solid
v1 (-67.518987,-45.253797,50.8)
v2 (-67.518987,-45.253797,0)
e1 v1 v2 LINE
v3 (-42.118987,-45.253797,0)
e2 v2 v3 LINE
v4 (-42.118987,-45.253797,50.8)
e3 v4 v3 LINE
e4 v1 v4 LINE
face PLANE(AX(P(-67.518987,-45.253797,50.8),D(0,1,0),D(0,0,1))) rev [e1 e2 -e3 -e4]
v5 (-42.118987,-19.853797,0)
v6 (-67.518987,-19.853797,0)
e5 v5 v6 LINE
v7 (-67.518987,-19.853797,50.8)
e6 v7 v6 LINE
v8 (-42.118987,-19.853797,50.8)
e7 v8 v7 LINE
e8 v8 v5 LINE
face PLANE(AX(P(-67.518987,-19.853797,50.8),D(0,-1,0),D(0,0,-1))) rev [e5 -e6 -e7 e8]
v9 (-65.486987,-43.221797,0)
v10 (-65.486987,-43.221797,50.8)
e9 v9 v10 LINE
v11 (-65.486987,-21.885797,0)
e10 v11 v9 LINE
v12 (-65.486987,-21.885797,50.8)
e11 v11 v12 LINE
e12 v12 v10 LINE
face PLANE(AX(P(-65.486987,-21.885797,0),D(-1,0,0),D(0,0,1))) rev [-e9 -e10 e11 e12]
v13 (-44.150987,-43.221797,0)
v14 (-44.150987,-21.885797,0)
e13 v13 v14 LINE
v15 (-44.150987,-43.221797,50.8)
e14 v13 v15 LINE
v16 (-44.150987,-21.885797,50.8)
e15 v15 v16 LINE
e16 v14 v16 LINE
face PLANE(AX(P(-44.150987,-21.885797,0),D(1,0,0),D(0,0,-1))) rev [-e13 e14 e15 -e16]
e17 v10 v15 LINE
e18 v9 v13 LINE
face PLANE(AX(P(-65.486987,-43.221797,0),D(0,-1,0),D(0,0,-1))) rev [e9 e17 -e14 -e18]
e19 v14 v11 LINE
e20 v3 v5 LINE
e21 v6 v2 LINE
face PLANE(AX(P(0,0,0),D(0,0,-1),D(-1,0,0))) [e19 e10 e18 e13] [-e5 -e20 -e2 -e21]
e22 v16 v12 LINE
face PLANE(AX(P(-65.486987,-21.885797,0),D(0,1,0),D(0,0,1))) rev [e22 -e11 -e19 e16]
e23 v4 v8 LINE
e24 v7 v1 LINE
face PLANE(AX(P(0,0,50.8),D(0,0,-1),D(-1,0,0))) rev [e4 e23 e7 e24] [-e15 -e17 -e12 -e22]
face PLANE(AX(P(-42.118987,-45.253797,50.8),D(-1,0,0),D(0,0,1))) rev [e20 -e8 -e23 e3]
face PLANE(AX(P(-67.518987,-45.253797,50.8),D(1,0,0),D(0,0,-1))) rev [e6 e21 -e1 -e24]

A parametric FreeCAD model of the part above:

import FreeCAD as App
import Part
import Sketcher
Q = App.Units.Quantity

doc = App.newDocument("Part")
body = doc.addObject("PartDesign::Body", "Body")

sketch1 = doc.addObject("Sketcher::SketchObject", "Sketch")
body.addObject(sketch1)
sketch1.AttachmentSupport = (doc.XY_Plane, [""])
sketch1.MapMode = "FlatFace"
sketch1.addGeometry([
    Part.LineSegment(App.Vector(-67.518987, -19.853797, 0), App.Vector(-67.518987, -45.253797, 0)),
    Part.LineSegment(App.Vector(-67.518987, -45.253797, 0), App.Vector(-42.118987, -45.253797, 0)),
    Part.LineSegment(App.Vector(-42.118987, -45.253797, 0), App.Vector(-42.118987, -19.853797, 0)),
    Part.LineSegment(App.Vector(-42.118987, -19.853797, 0), App.Vector(-67.518987, -19.853797, 0)),
], False)
sketch1.addConstraint([
    Sketcher.Constraint("Coincident", 0, 2, 1, 1),
    Sketcher.Constraint("Coincident", 1, 2, 2, 1),
    Sketcher.Constraint("Coincident", 2, 2, 3, 1),
    Sketcher.Constraint("Coincident", 3, 2, 0, 1),
    Sketcher.Constraint("Vertical", 0),
    Sketcher.Constraint("Horizontal", 1),
    Sketcher.Constraint("Vertical", 2),
    Sketcher.Constraint("Horizontal", 3),
    Sketcher.Constraint("Equal", 3, 0),
    Sketcher.Constraint("DistanceX", 1, 1, 1, 2, Q("1 in")),
    Sketcher.Constraint("DistanceX", 0, 2, -1, 1, 67.518987),
    Sketcher.Constraint("DistanceY", 0, 2, -1, 1, 45.253797),
])
pad1 = doc.addObject("PartDesign::Pad", "Pad")
body.addObject(pad1)
pad1.Profile = sketch1
pad1.Length = Q("2 in")

sketch2 = doc.addObject("Sketcher::SketchObject", "Sketch001")
body.addObject(sketch2)
sketch2.AttachmentSupport = (doc.XY_Plane, [""])
sketch2.MapMode = "FlatFace"
sketch2.AttachmentOffset = App.Placement(App.Vector(0, 0, 2 * 25.4), App.Rotation())
sketch2.addGeometry([
    Part.LineSegment(App.Vector(-65.486987, -21.885797, 0), App.Vector(-65.486987, -43.221797, 0)),
    Part.LineSegment(App.Vector(-65.486987, -43.221797, 0), App.Vector(-44.150987, -43.221797, 0)),
    Part.LineSegment(App.Vector(-44.150987, -43.221797, 0), App.Vector(-44.150987, -21.885797, 0)),
    Part.LineSegment(App.Vector(-44.150987, -21.885797, 0), App.Vector(-65.486987, -21.885797, 0)),
], False)
sketch2.addConstraint([
    Sketcher.Constraint("Coincident", 0, 2, 1, 1),
    Sketcher.Constraint("Coincident", 1, 2, 2, 1),
    Sketcher.Constraint("Coincident", 2, 2, 3, 1),
    Sketcher.Constraint("Coincident", 3, 2, 0, 1),
    Sketcher.Constraint("Vertical", 0),
    Sketcher.Constraint("Horizontal", 1),
    Sketcher.Constraint("Vertical", 2),
    Sketcher.Constraint("Horizontal", 3),
    Sketcher.Constraint("Equal", 3, 0),
    Sketcher.Constraint("DistanceX", 1, 1, 1, 2, Q("0.84 in")),
    Sketcher.Constraint("DistanceX", 0, 2, -1, 1, 65.486987),
    Sketcher.Constraint("DistanceY", 0, 2, -1, 1, 43.221797),
])
pocket1 = doc.addObject("PartDesign::Pocket", "Pocket")
body.addObject(pocket1)
pocket1.Profile = sketch2
pocket1.Type = "ThroughAll"

doc.recompute()
